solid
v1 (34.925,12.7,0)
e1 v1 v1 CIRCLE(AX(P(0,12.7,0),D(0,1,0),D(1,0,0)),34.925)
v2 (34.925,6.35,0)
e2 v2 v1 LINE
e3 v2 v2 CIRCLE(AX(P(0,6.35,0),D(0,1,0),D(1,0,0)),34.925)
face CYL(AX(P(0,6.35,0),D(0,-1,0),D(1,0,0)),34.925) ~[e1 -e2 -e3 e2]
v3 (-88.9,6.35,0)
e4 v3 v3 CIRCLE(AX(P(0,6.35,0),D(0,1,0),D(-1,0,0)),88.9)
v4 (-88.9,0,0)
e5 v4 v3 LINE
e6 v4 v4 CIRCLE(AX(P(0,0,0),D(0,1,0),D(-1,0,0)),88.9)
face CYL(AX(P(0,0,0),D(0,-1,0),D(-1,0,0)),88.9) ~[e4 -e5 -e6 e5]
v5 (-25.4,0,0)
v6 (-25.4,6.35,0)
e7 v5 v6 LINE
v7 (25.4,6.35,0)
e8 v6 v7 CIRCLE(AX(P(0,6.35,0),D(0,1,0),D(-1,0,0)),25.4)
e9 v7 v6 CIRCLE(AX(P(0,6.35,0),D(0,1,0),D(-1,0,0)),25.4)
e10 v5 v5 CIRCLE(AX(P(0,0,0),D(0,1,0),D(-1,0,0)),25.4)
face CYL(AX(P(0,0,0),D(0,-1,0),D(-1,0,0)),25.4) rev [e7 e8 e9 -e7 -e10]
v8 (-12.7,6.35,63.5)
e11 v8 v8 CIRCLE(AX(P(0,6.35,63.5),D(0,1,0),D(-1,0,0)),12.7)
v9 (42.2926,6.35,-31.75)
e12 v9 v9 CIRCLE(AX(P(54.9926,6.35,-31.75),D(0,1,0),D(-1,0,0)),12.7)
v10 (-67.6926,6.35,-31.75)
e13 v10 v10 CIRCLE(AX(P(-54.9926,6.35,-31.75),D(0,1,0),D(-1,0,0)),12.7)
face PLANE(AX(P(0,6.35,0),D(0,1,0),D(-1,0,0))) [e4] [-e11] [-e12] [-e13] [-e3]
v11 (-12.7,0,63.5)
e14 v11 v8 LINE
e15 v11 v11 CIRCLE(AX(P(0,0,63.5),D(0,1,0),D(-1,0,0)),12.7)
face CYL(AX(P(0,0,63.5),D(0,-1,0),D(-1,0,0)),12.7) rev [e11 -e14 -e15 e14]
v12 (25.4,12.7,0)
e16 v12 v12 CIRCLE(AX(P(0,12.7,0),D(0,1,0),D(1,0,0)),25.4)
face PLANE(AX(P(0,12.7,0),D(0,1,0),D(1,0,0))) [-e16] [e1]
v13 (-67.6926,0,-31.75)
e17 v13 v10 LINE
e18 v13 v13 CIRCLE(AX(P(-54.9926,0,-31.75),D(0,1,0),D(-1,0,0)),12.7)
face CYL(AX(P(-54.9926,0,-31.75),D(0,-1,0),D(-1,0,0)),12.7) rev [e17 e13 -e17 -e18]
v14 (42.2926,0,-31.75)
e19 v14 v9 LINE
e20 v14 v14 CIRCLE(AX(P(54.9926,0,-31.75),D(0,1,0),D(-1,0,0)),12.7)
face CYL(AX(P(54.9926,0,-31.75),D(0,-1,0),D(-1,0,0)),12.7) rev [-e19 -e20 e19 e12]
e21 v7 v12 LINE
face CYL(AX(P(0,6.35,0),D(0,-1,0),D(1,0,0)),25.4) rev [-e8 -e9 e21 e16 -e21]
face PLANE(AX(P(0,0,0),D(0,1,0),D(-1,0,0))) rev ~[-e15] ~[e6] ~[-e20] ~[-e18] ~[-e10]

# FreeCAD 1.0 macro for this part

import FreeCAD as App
import Part
import Sketcher
from FreeCAD import Vector
Q = App.Units.Quantity

doc = App.newDocument("Part")
body = doc.addObject("PartDesign::Body", "Body")

sketch1 = body.newObject("Sketcher::SketchObject", "Sketch")
sketch1.AttachmentSupport = (doc.getObject("XZ_Plane"), [""])
sketch1.MapMode = "FlatFace"
sketch1.addGeometry(Part.Circle(Vector(0, 0, 0), Vector(0, 0, 1), 88.9), False)
sketch1.addGeometry(Part.Circle(Vector(54.9926, -31.75, 0), Vector(0, 0, 1), 12.7), False)
sketch1.addGeometry(Part.Circle(Vector(-54.9926, -31.75, 0), Vector(0, 0, 1), 12.7), False)
sketch1.addGeometry(Part.Circle(Vector(0, 63.5, 0), Vector(0, 0, 1), 12.7), False)
sketch1.addGeometry(Part.Circle(Vector(0, 0, 0), Vector(0, 0, 1), 25.4), False)
sketch1.addConstraint(Sketcher.Constraint("Coincident", 0, 3, -1, 1))
sketch1.addConstraint(Sketcher.Constraint("Coincident", 4, 3, -1, 1))
sketch1.addConstraint(Sketcher.Constraint("Equal", 1, 2))
sketch1.addConstraint(Sketcher.Constraint("Equal", 2, 3))
sketch1.addConstraint(Sketcher.Constraint("Symmetric", 1, 3, 2, 3, -2))
sketch1.addConstraint(Sketcher.Constraint("PointOnObject", 3, 3, -2))
sketch1.addConstraint(Sketcher.Constraint("Diameter", 0, Q("7 in")))
sketch1.addConstraint(Sketcher.Constraint("Diameter", 1, Q("1 in")))
sketch1.addConstraint(Sketcher.Constraint("Diameter", 4, Q("2 in")))
sketch1.addConstraint(Sketcher.Constraint("DistanceY", -1, 1, 3, 3, Q("2.5 in")))
sketch1.addConstraint(Sketcher.Constraint("DistanceY", 1, 3, -1, 1, Q("1.25 in")))
sketch1.addConstraint(Sketcher.Constraint("DistanceX", -1, 1, 1, 3, Q("54.9926 mm")))
pad1 = body.newObject("PartDesign::Pad", "Pad")
pad1.Profile = sketch1
pad1.Length = Q("0.25 in")
pad1.Reversed = True

sketch2 = body.newObject("Sketcher::SketchObject", "Sketch001")
sketch2.AttachmentSupport = (doc.getObject("XZ_Plane"), [""])
sketch2.MapMode = "FlatFace"
sketch2.AttachmentOffset = App.Placement(Vector(0, 0, -0.25 * 25.4), App.Rotation())
sketch2.addGeometry(Part.Circle(Vector(0, 0, 0), Vector(0, 0, 1), 34.925), False)
sketch2.addGeometry(Part.Circle(Vector(0, 0, 0), Vector(0, 0, 1), 25.4), False)
sketch2.addConstraint(Sketcher.Constraint("Coincident", 0, 3, -1, 1))
sketch2.addConstraint(Sketcher.Constraint("Coincident", 1, 3, -1, 1))
sketch2.addConstraint(Sketcher.Constraint("Diameter", 1, Q("2 in")))
sketch2.addConstraint(Sketcher.Constraint("Diameter", 0, Q("2.75 in")))
pad2 = body.newObject("PartDesign::Pad", "Pad001")
pad2.Profile = sketch2
pad2.Length = Q("0.25 in")
pad2.Reversed = True

doc.recompute()
